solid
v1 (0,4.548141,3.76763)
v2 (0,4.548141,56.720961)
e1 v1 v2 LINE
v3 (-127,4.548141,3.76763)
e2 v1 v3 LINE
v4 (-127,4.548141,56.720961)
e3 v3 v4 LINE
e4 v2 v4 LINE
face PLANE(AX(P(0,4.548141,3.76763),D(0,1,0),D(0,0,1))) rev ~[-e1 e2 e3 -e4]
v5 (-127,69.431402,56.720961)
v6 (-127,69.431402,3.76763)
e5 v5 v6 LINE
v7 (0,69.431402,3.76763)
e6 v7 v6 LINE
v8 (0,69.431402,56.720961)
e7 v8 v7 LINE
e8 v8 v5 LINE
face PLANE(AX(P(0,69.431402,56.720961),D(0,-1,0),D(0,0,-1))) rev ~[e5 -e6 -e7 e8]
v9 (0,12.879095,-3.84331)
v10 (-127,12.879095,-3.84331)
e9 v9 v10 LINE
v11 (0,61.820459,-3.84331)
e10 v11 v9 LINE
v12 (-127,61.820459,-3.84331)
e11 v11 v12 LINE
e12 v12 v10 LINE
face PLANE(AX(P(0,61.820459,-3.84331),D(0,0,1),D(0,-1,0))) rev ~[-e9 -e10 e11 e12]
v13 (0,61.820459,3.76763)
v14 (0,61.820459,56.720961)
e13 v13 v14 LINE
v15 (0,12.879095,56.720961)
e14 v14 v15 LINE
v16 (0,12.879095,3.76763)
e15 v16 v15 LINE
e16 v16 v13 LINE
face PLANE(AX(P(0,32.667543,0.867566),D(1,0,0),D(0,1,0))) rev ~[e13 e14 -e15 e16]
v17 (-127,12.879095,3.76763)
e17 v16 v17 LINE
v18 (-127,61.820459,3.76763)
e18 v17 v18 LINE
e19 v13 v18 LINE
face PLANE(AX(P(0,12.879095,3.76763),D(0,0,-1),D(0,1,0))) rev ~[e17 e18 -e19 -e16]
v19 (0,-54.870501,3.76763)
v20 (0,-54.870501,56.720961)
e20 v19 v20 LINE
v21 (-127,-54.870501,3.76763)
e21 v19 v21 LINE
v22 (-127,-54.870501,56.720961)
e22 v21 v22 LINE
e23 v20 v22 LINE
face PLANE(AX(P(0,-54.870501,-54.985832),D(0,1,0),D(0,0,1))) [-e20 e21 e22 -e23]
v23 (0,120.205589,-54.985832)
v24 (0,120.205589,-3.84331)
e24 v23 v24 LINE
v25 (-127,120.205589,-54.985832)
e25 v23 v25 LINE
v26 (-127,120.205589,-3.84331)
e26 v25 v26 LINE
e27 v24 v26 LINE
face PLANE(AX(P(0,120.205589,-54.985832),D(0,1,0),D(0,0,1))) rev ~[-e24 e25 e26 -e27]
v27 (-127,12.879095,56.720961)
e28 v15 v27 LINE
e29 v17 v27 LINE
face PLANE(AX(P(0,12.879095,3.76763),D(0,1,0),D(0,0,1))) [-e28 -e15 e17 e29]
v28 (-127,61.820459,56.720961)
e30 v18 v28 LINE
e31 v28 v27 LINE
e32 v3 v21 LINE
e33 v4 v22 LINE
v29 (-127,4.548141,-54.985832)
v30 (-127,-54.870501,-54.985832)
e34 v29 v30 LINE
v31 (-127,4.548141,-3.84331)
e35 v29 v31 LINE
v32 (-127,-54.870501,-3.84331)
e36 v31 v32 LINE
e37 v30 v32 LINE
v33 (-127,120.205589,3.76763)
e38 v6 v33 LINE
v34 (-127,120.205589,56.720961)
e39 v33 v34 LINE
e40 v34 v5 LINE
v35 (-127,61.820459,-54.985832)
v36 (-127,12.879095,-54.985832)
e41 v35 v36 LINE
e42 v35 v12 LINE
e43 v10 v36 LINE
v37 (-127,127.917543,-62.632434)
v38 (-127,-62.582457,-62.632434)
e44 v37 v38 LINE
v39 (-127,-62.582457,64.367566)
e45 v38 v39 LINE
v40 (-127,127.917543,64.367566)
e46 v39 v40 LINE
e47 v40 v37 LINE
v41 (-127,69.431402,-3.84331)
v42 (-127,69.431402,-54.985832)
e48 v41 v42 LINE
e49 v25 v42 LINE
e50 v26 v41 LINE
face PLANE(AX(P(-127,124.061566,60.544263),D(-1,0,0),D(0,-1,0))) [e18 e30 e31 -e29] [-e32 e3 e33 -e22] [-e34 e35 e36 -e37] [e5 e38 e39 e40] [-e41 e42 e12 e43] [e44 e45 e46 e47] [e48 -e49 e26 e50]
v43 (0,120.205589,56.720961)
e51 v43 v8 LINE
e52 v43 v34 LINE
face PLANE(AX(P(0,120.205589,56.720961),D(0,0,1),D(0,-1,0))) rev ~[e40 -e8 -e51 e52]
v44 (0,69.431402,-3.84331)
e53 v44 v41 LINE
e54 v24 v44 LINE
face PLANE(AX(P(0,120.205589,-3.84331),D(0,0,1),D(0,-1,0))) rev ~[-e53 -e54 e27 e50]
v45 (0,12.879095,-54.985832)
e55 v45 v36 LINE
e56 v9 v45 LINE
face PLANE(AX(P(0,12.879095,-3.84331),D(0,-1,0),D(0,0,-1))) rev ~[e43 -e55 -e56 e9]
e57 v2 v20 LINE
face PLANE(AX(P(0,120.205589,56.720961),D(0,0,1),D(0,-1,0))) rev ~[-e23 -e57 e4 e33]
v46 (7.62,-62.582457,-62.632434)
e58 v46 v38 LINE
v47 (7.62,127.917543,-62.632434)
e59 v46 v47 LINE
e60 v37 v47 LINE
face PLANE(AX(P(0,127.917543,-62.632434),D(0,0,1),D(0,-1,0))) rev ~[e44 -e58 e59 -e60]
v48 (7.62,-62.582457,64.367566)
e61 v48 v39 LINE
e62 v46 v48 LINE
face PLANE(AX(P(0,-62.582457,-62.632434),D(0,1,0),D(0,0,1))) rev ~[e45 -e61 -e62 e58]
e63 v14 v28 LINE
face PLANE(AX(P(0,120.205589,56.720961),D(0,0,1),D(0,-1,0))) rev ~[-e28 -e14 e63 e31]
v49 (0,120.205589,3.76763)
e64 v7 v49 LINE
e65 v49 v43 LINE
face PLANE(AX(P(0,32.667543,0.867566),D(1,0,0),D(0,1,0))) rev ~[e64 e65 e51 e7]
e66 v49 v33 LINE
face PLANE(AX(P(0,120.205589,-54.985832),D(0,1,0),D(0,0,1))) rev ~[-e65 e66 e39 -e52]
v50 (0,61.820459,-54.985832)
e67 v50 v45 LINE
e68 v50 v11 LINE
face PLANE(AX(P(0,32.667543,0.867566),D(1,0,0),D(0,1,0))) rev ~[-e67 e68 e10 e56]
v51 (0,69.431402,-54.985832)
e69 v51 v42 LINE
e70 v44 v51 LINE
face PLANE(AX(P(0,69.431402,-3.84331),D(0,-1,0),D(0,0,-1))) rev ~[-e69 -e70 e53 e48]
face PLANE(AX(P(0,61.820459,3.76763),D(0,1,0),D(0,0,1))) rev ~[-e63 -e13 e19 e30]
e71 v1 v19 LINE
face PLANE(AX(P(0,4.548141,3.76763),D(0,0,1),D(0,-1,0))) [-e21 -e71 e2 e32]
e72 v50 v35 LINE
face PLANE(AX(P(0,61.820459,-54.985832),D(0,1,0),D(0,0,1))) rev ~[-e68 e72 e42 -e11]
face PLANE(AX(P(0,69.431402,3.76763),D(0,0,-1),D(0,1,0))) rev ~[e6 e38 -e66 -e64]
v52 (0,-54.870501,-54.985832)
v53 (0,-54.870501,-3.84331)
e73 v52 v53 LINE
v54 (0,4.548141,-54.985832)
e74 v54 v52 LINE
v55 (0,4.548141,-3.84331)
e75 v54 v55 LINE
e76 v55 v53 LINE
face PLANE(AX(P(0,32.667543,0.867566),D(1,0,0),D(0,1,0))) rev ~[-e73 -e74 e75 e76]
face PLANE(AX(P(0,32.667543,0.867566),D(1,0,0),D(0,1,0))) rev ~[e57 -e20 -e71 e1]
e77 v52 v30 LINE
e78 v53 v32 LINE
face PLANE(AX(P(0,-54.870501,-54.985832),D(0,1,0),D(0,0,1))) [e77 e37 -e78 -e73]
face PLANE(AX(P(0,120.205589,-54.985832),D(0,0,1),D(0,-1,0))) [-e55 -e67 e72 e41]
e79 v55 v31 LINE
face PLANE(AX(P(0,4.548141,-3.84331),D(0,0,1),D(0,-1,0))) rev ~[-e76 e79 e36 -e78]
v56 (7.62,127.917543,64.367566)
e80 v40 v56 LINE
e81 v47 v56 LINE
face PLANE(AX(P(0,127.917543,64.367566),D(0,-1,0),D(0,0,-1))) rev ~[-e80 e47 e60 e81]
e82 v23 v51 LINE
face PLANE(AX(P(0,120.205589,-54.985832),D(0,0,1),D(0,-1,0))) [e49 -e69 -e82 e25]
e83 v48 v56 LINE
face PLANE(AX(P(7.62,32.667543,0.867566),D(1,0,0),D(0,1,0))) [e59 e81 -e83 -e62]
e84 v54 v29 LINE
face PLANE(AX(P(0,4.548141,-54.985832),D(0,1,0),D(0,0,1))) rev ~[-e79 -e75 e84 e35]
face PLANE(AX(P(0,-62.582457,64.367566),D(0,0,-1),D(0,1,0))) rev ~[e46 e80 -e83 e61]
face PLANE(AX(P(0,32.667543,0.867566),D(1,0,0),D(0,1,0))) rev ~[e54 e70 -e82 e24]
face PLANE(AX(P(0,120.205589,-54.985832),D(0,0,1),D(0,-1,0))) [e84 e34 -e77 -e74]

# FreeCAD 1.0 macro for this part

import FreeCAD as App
import Part
import Sketcher

V = App.Vector
Q = App.Units.Quantity


def add_polygon(sketch, points):
    """Adds a closed chain of lines whose ends are joined by coincident constraints."""
    first, n = sketch.GeometryCount, len(points)
    for a, b in zip(points, points[1:] + points[:1]):
        sketch.addGeometry(Part.LineSegment(App.Vector(*a, 0), App.Vector(*b, 0)), False)
    for i in range(n):
        sketch.addConstraint(Sketcher.Constraint("Coincident", first + i, 2, first + (i + 1) % n, 1))

doc = App.newDocument("Part")
body = doc.addObject("PartDesign::Body", "Body")

sketch1 = doc.addObject("Sketcher::SketchObject", "Sketch")
body.addObject(sketch1)
sketch1.AttachmentSupport = (doc.YZ_Plane, [""])
sketch1.MapMode = "FlatFace"
add_polygon(sketch1, [(-62.582457, 64.367566), (-62.582457, -62.632434), (127.917543, -62.632434), (127.917543, 64.367566)])
sketch1.addConstraint([
    Sketcher.Constraint("Vertical", 0),
    Sketcher.Constraint("Horizontal", 1),
    Sketcher.Constraint("Vertical", 2),
    Sketcher.Constraint("Horizontal", 3),
    Sketcher.Constraint("DistanceY", 0, 2, 0, 1, Q("5 in")),
    Sketcher.Constraint("DistanceX", 1, 1, 1, 2, Q("7.5 in")),
    Sketcher.Constraint("DistanceX", 0, 2, -1, 1, Q("62.582457 mm")),
    Sketcher.Constraint("DistanceY", 0, 2, -1, 1, Q("62.632434 mm")),
])
pad1 = doc.addObject("PartDesign::Pad", "Pad")
body.addObject(pad1)
pad1.Profile = sketch1
pad1.Length = Q("0.3 in")

sketch2 = doc.addObject("Sketcher::SketchObject", "Sketch001")
body.addObject(sketch2)
sketch2.AttachmentSupport = (doc.YZ_Plane, [""])
sketch2.MapMode = "FlatFace"
add_polygon(sketch2, [(127.917543, -62.632434), (-62.582457, -62.632434), (-62.582457, 64.367566), (127.917543, 64.367566)])
add_polygon(sketch2, [(-54.870501, -54.985832), (120.205589, -54.985832), (120.205589, 56.720961), (-54.870501, 56.720961)])
sketch2.addConstraint([
    Sketcher.Constraint("Horizontal", 0),
    Sketcher.Constraint("Vertical", 1),
    Sketcher.Constraint("Horizontal", 2),
    Sketcher.Constraint("Vertical", 3),
    Sketcher.Constraint("Horizontal", 4),
    Sketcher.Constraint("Vertical", 5),
    Sketcher.Constraint("Horizontal", 6),
    Sketcher.Constraint("Vertical", 7),
    Sketcher.Constraint("DistanceY", 1, 1, 1, 2, Q("5 in")),
    Sketcher.Constraint("DistanceX", 0, 2, 0, 1, Q("7.5 in")),
    Sketcher.Constraint("DistanceX", 4, 1, 4, 2, Q("175.07609 mm")),
    Sketcher.Constraint("DistanceX", 6, 2, -1, 1, Q("54.870501 mm")),
    Sketcher.Constraint("DistanceY", 3, 2, 4, 2, Q("7.646602 mm")),
    Sketcher.Constraint("DistanceY", 5, 1, 5, 2, Q("111.706793 mm")),
    Sketcher.Constraint("DistanceY", -1, 1, 5, 2, Q("56.720961 mm")),
    Sketcher.Constraint("DistanceX", 0, 2, -1, 1, Q("62.582457 mm")),
])
pad2 = doc.addObject("PartDesign::Pad", "Pad001")
body.addObject(pad2)
pad2.Profile = sketch2
pad2.Length = Q("5 in")
pad2.Reversed = True

sketch3 = doc.addObject("Sketcher::SketchObject", "Sketch002")
body.addObject(sketch3)
sketch3.AttachmentSupport = (doc.YZ_Plane, [""])
sketch3.MapMode = "FlatFace"
add_polygon(sketch3, [(69.431402, 56.720961), (69.431402, 3.76763), (120.205589, 3.76763), (120.205589, -3.84331), (69.431402, -3.84331), (69.431402, -54.985832), (61.820459, -54.985832), (61.820459, -3.84331), (12.879095, -3.84331), (12.879095, -54.985832), (4.548141, -54.985832), (4.548141, -3.84331), (-54.870501, -3.84331), (-54.870501, 3.76763), (4.548141, 3.76763), (4.548141, 56.720961), (12.879095, 56.720961), (12.879095, 3.76763), (61.820459, 3.76763), (61.820459, 56.720961)])
sketch3.addConstraint([
    Sketcher.Constraint("Vertical", 0),
    Sketcher.Constraint("Horizontal", 1),
    Sketcher.Constraint("Vertical", 2),
    Sketcher.Constraint("Horizontal", 3),
    Sketcher.Constraint("Vertical", 4),
    Sketcher.Constraint("Horizontal", 5),
    Sketcher.Constraint("Vertical", 6),
    Sketcher.Constraint("Horizontal", 7),
    Sketcher.Constraint("Vertical", 8),
    Sketcher.Constraint("Horizontal", 9),
    Sketcher.Constraint("Vertical", 10),
    Sketcher.Constraint("Horizontal", 11),
    Sketcher.Constraint("Vertical", 12),
    Sketcher.Constraint("Horizontal", 13),
    Sketcher.Constraint("Vertical", 14),
    Sketcher.Constraint("Horizontal", 15),
    Sketcher.Constraint("Vertical", 16),
    Sketcher.Constraint("Horizontal", 17),
    Sketcher.Constraint("Vertical", 18),
    Sketcher.Constraint("Horizontal", 19),
    Sketcher.Constraint("Horizontal", 3, 2, 6, 2),
    Sketcher.Constraint("Horizontal", 5, 2, 8, 2),
    Sketcher.Constraint("Horizontal", 7, 2, 10, 2),
    Sketcher.Constraint("Horizontal", 1, 2, 12, 2),
    Sketcher.Constraint("Horizontal", 13, 2, 16, 2),
    Sketcher.Constraint("Horizontal", 15, 2, 18, 2),
    Sketcher.Constraint("Vertical", 0, 2, 3, 2),
    Sketcher.Constraint("Vertical", 10, 2, 13, 2),
    Sketcher.Constraint("Vertical", 8, 2, 15, 2),
    Sketcher.Constraint("Vertical", 6, 2, 17, 2),
    Sketcher.Constraint("DistanceX", 11, 2, 11, 1, Q("59.418642 mm")),
    Sketcher.Constraint("DistanceY", 0, 2, 0, 1, Q("52.953331 mm")),
    Sketcher.Constraint("DistanceY", 2, 2, 2, 1, Q("7.610939 mm")),
    Sketcher.Constraint("DistanceX", -1, 1, 0, 2, Q("69.431402 mm")),
    Sketcher.Constraint("DistanceX", 11, 2, -1, 1, Q("54.870501 mm")),
    Sketcher.Constraint("DistanceX", 1, 1, 1, 2, Q("50.774187 mm")),
    Sketcher.Constraint("DistanceX", 5, 2, 5, 1, Q("7.610943 mm")),
    Sketcher.Constraint("DistanceX", 7, 2, 7, 1, Q("48.941364 mm")),
    Sketcher.Constraint("DistanceY", 4, 2, 4, 1, Q("51.142523 mm")),
    Sketcher.Constraint("DistanceY", -1, 1, 0, 2, Q("3.76763 mm")),
])
pad3 = doc.addObject("PartDesign::Pad", "Pad002")
body.addObject(pad3)
pad3.Profile = sketch3
pad3.Length = Q("5 in")
pad3.Reversed = True

doc.recompute()
